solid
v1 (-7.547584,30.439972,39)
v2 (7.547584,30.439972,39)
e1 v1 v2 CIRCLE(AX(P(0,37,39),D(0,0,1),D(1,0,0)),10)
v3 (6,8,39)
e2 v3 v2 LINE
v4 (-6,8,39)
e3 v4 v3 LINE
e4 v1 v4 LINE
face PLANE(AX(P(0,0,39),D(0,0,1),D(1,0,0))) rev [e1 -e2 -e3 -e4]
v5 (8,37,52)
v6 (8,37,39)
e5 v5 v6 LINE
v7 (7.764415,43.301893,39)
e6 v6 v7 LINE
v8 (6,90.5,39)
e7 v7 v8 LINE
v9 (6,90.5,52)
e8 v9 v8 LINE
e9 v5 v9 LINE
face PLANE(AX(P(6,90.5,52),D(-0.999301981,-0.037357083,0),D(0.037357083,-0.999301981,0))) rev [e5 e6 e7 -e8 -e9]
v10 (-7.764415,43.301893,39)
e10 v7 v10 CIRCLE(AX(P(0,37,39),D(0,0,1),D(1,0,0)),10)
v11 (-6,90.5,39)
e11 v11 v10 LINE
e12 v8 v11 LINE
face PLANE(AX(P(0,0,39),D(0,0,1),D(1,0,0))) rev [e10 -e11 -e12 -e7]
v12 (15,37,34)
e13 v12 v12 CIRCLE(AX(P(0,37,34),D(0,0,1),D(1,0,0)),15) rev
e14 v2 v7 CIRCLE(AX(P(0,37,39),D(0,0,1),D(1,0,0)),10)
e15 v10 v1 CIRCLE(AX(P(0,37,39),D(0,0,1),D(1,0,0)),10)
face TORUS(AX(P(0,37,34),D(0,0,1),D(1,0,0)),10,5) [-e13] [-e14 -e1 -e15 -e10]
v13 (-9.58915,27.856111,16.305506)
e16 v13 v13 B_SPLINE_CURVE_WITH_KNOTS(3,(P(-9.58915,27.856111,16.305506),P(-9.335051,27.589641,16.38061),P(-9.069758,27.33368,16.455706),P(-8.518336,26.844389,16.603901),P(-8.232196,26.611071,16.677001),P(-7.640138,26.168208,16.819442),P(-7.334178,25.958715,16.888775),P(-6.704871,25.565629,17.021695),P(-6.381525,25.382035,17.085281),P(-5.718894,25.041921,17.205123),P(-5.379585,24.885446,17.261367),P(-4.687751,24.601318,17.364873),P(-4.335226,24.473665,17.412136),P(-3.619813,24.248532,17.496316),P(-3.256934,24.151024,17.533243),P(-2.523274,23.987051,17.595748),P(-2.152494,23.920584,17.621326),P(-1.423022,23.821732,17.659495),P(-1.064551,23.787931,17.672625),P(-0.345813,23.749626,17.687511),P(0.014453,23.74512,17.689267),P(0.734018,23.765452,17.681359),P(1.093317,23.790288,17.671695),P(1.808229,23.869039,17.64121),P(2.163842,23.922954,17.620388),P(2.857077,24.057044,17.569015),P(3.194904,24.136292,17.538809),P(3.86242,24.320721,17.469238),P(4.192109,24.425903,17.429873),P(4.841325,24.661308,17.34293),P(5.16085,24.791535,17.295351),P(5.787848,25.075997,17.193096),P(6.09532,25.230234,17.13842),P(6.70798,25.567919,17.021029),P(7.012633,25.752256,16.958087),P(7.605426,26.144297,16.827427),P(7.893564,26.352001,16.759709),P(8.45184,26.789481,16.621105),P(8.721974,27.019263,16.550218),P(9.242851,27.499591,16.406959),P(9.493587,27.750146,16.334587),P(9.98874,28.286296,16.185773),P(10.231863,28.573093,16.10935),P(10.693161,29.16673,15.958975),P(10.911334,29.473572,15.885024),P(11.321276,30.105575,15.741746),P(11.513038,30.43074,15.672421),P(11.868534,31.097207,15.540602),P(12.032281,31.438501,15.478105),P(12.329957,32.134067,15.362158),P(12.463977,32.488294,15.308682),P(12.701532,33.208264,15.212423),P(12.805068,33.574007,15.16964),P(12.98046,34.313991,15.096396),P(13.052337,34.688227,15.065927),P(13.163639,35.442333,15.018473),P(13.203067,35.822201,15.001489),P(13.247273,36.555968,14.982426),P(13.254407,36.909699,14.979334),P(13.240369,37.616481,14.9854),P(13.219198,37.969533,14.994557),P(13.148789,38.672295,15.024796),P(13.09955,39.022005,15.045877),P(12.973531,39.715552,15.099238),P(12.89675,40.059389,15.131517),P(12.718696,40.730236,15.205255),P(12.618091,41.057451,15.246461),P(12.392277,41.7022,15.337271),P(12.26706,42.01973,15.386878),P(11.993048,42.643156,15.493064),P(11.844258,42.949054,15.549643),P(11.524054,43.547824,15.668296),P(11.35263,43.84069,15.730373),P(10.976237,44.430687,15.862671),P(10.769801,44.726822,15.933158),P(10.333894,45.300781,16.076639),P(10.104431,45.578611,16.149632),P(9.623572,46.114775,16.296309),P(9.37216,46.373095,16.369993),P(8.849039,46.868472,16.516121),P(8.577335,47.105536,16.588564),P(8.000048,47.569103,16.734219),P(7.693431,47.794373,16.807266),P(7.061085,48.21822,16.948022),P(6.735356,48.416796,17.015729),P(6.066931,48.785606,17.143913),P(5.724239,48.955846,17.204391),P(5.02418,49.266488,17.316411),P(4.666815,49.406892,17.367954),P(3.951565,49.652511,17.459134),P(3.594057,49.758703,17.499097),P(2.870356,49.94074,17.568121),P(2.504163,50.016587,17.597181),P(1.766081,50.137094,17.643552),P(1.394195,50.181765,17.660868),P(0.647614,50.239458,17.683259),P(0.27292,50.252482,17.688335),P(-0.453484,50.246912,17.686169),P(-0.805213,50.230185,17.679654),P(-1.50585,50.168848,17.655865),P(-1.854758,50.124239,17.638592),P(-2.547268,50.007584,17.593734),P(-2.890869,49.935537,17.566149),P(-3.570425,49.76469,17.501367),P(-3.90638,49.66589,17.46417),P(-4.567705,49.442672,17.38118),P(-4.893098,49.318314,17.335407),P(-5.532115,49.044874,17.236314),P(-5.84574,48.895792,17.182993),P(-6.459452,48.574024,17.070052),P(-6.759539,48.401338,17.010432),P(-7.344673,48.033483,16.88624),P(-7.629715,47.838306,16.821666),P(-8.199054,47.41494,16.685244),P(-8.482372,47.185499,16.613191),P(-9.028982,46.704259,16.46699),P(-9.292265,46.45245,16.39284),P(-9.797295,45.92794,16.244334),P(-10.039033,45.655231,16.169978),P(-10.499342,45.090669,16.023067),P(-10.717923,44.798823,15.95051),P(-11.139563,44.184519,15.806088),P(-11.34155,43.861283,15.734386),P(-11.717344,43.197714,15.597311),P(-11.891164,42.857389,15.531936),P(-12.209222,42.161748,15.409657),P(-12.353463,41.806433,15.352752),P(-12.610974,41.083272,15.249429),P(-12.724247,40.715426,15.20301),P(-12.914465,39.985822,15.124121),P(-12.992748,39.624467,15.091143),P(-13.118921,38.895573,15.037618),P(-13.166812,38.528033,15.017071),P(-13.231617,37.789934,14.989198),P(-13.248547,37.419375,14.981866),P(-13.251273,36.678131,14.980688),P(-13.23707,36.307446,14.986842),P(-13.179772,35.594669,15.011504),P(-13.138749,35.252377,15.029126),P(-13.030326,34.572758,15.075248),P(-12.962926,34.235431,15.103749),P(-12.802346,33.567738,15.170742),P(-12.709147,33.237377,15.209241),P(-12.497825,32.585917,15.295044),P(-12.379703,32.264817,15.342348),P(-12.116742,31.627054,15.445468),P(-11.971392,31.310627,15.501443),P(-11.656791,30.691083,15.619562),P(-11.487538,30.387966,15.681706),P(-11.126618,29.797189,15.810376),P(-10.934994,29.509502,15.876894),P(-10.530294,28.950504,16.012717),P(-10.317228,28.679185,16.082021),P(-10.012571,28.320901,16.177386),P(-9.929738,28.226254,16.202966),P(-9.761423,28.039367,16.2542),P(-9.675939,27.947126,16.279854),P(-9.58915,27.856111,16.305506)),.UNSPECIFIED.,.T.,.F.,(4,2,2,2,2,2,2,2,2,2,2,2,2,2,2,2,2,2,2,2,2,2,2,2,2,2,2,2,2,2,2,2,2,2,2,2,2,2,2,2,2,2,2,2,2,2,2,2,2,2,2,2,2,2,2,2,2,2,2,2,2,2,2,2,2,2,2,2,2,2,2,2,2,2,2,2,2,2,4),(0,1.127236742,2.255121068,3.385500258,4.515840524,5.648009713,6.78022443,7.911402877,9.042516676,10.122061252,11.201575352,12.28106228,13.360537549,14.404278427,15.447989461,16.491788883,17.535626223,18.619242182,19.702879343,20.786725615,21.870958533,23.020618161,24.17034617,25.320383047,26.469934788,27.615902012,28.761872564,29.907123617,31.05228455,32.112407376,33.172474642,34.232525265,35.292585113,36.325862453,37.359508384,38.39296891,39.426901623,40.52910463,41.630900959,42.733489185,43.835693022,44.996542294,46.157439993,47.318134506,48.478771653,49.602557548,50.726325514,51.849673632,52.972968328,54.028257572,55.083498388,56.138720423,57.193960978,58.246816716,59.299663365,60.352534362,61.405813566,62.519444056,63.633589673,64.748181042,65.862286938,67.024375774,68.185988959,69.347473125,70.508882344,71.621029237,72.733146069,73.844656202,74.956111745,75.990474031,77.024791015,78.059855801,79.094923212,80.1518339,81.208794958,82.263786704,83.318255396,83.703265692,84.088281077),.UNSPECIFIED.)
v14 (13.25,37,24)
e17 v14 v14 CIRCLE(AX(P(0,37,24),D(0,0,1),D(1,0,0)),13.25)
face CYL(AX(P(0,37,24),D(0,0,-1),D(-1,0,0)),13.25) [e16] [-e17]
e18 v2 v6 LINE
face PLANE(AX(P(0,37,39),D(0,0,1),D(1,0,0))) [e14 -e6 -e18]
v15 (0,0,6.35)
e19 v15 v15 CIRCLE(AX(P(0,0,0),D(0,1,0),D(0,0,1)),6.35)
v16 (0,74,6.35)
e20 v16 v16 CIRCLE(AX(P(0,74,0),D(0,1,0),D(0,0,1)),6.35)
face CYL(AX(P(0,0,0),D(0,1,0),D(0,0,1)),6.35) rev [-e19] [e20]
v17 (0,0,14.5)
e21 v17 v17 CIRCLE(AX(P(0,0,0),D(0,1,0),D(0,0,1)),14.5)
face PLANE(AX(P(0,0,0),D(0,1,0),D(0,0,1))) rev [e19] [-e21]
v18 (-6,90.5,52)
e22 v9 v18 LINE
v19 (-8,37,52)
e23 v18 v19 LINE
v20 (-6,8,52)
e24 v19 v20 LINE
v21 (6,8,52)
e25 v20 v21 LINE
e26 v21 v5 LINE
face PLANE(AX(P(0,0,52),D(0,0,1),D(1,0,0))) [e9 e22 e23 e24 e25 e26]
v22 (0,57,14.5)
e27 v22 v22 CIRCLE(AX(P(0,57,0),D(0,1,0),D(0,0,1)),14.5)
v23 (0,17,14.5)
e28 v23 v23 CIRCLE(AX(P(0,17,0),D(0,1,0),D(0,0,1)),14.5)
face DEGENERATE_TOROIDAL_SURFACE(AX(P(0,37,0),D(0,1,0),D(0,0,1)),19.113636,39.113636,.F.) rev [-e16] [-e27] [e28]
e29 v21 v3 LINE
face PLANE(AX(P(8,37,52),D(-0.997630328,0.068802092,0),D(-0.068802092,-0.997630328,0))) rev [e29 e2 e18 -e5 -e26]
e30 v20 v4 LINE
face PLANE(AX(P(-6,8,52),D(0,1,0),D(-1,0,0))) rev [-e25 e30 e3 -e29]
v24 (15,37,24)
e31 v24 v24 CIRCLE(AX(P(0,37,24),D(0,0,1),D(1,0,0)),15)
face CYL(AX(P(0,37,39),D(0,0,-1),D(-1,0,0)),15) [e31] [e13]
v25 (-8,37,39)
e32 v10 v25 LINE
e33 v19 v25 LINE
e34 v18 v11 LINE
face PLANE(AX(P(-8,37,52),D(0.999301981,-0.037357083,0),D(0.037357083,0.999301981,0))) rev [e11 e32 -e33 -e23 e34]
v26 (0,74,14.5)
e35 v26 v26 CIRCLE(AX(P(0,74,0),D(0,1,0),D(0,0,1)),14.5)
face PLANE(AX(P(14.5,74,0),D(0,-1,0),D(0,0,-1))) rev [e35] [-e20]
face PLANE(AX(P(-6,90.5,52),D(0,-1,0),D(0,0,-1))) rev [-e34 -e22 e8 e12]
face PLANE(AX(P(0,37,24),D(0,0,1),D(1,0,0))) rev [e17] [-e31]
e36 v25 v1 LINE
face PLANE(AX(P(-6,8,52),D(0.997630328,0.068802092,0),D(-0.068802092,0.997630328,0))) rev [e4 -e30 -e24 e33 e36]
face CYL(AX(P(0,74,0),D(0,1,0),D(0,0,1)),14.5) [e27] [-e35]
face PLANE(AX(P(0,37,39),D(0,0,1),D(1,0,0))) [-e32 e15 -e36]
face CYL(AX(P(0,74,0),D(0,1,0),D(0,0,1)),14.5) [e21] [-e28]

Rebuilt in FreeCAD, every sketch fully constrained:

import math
import FreeCAD as App
import Part
import Sketcher
Q = App.Units.Quantity


def edges_at(feature, points):
    """Names of the edges that pass closest to the given points."""
    edges = feature.Shape.Edges
    near = lambda p: min(range(len(edges)), key=lambda i: edges[i].distToShape(Part.Vertex(*p))[0])
    return sorted({f"Edge{near(p) + 1}" for p in points})

doc = App.newDocument("Part")
body = doc.addObject("PartDesign::Body", "Body")

# Sketch on XY plane
sketch1 = body.newObject("Sketcher::SketchObject", "Sketch")
sketch1.AttachmentSupport = (doc.getObject("XY_Plane"), [""])
sketch1.MapMode = "FlatFace"
sketch1.addGeometry([
    Part.LineSegment(App.Vector(0, 0, 0), App.Vector(14, 0, 0)),  # 0
    Part.LineSegment(App.Vector(14, 0, 0), App.Vector(14, 17, 0)),  # 1
    Part.ArcOfCircle(Part.Circle(App.Vector(-19, 37, 0), App.Vector(0, 0, 1), 39), math.radians(-31), math.radians(31)),  # 2
    Part.LineSegment(App.Vector(14, 57, 0), App.Vector(14, 74, 0)),  # 3
    Part.LineSegment(App.Vector(14, 74, 0), App.Vector(0, 74, 0)),  # 4
    Part.LineSegment(App.Vector(0, 74, 0), App.Vector(0, 0, 0)),  # 5
], False)
sketch1.addConstraint([
    Sketcher.Constraint("Coincident", 0, 2, 1, 1),
    Sketcher.Constraint("Coincident", 1, 2, 2, 1),
    Sketcher.Constraint("Coincident", 2, 2, 3, 1),
    Sketcher.Constraint("Coincident", 3, 2, 4, 1),
    Sketcher.Constraint("Coincident", 4, 2, 5, 1),
    Sketcher.Constraint("Coincident", 5, 2, 0, 1),
    Sketcher.Constraint("Horizontal", 0),
    Sketcher.Constraint("Vertical", 1),
    Sketcher.Constraint("Vertical", 3),
    Sketcher.Constraint("Horizontal", 4),
    Sketcher.Constraint("Vertical", 5),
    Sketcher.Constraint("Coincident", 5, 2, -1, 1),
    Sketcher.Constraint("Vertical", 1, 2, 2, 2),
    Sketcher.Constraint("Equal", 1, 3),
    Sketcher.Constraint("DistanceY", 1, 1, 1, 2, Q("17 mm")),
    Sketcher.Constraint("DistanceY", 5, 2, 5, 1, Q("74 mm")),
    Sketcher.Constraint("DistanceX", 0, 1, 0, 2, Q("14.5 mm")),
    Sketcher.Constraint("Radius", 2, Q("39.113636 mm")),
])
revolution = body.newObject("PartDesign::Revolution", "Revolution")
revolution.Profile = sketch1
revolution.ReferenceAxis = (sketch1, ["V_Axis"])
revolution.Angle = 360

# Sketch on XZ plane
sketch2 = body.newObject("Sketcher::SketchObject", "Sketch001")
sketch2.AttachmentSupport = (doc.getObject("XZ_Plane"), [""])
sketch2.MapMode = "FlatFace"
sketch2.AttachmentOffset = App.Placement(App.Vector(0, 0, -74), App.Rotation())
sketch2.addGeometry(Part.Circle(App.Vector(0, 0, 0), App.Vector(0, 0, 1), 6), False)
sketch2.addConstraint([
    Sketcher.Constraint("Coincident", 0, 3, -1, 1),
    Sketcher.Constraint("Diameter", 0, Q("12.7 mm")),
])
pocket1 = body.newObject("PartDesign::Pocket", "Pocket")
pocket1.Profile = sketch2
pocket1.Type = "ThroughAll"
pocket1.Reversed = True

# Sketch on XY plane
sketch3 = body.newObject("Sketcher::SketchObject", "Sketch002")
sketch3.AttachmentSupport = (doc.getObject("XY_Plane"), [""])
sketch3.MapMode = "FlatFace"
sketch3.addGeometry(Part.Circle(App.Vector(0, 37, 0), App.Vector(0, 0, 1), 13), False)
sketch3.addConstraint([
    Sketcher.Constraint("PointOnObject", 0, 3, -2),
    Sketcher.Constraint("Diameter", 0, Q("26.5 mm")),
    Sketcher.Constraint("DistanceY", -1, 1, 0, 3, Q("37 mm")),
])
pad1 = body.newObject("PartDesign::Pad", "Pad")
pad1.Profile = sketch3
pad1.Length = 24

# Sketch on XZ plane
sketch4 = body.newObject("Sketcher::SketchObject", "Sketch003")
sketch4.AttachmentSupport = (doc.getObject("XZ_Plane"), [""])
sketch4.MapMode = "FlatFace"
sketch4.AttachmentOffset = App.Placement(App.Vector(0, 0, -74), App.Rotation())
sketch4.addGeometry(Part.Circle(App.Vector(0, 0, 0), App.Vector(0, 0, 1), 6), False)
sketch4.addConstraint([
    Sketcher.Constraint("Coincident", 0, 3, -1, 1),
    Sketcher.Constraint("Diameter", 0, Q("12.7 mm")),
])
pocket2 = body.newObject("PartDesign::Pocket", "Pocket001")
pocket2.Profile = sketch4
pocket2.Type = "ThroughAll"
pocket2.Reversed = True

# Sketch on XY plane
sketch5 = body.newObject("Sketcher::SketchObject", "Sketch004")
sketch5.AttachmentSupport = (doc.getObject("XY_Plane"), [""])
sketch5.MapMode = "FlatFace"
sketch5.AttachmentOffset = App.Placement(App.Vector(0, 0, 24), App.Rotation())
sketch5.addGeometry(Part.Circle(App.Vector(0, 37, 0), App.Vector(0, 0, 1), 15), False)
sketch5.addConstraint([
    Sketcher.Constraint("PointOnObject", 0, 3, -2),
    Sketcher.Constraint("Diameter", 0, Q("30 mm")),
    Sketcher.Constraint("DistanceY", -1, 1, 0, 3, Q("37 mm")),
])
pad2 = body.newObject("PartDesign::Pad", "Pad001")
pad2.Profile = sketch5
pad2.Length = 15
doc.recompute()

fillet = body.newObject("PartDesign::Fillet", "Fillet")
fillet.Base = (pad2, edges_at(pad2, [(-15, 37, 39)]))
fillet.Radius = 5

# Sketch on XY plane
sketch6 = body.newObject("Sketcher::SketchObject", "Sketch005")
sketch6.AttachmentSupport = (doc.getObject("XY_Plane"), [""])
sketch6.MapMode = "FlatFace"
sketch6.AttachmentOffset = App.Placement(App.Vector(0, 0, 39), App.Rotation())
sketch6.addGeometry([
    Part.LineSegment(App.Vector(6, 90, 0), App.Vector(-6, 90, 0)),  # 0
    Part.LineSegment(App.Vector(-6, 90, 0), App.Vector(-8, 37, 0)),  # 1
    Part.LineSegment(App.Vector(-8, 37, 0), App.Vector(-6, 8, 0)),  # 2
    Part.LineSegment(App.Vector(-6, 8, 0), App.Vector(6, 8, 0)),  # 3
    Part.LineSegment(App.Vector(6, 8, 0), App.Vector(8, 37, 0)),  # 4
    Part.LineSegment(App.Vector(8, 37, 0), App.Vector(6, 90, 0)),  # 5
], False)
sketch6.addConstraint([
    Sketcher.Constraint("Coincident", 0, 2, 1, 1),
    Sketcher.Constraint("Coincident", 1, 2, 2, 1),
    Sketcher.Constraint("Coincident", 2, 2, 3, 1),
    Sketcher.Constraint("Coincident", 3, 2, 4, 1),
    Sketcher.Constraint("Coincident", 4, 2, 5, 1),
    Sketcher.Constraint("Coincident", 5, 2, 0, 1),
    Sketcher.Constraint("Horizontal", 0),
    Sketcher.Constraint("Horizontal", 3),
    Sketcher.Constraint("Symmetric", 1, 2, 4, 2, -2),
    Sketcher.Constraint("Vertical", 0, 2, 2, 2),
    Sketcher.Constraint("Vertical", 3, 2, 5, 2),
    Sketcher.Constraint("Equal", 2, 4),
    Sketcher.Constraint("DistanceX", 0, 2, 0, 1, Q("12 mm")),
    Sketcher.Constraint("DistanceX", 1, 2, -1, 1, Q("8 mm")),
    Sketcher.Constraint("DistanceY", -1, 1, 1, 2, Q("37 mm")),
    Sketcher.Constraint("DistanceY", -1, 1, 2, 2, Q("8 mm")),
    Sketcher.Constraint("DistanceY", -1, 1, 0, 2, Q("90.5 mm")),
])
pad3 = body.newObject("PartDesign::Pad", "Pad002")
pad3.Profile = sketch6
pad3.Length = 13

doc.recompute()
